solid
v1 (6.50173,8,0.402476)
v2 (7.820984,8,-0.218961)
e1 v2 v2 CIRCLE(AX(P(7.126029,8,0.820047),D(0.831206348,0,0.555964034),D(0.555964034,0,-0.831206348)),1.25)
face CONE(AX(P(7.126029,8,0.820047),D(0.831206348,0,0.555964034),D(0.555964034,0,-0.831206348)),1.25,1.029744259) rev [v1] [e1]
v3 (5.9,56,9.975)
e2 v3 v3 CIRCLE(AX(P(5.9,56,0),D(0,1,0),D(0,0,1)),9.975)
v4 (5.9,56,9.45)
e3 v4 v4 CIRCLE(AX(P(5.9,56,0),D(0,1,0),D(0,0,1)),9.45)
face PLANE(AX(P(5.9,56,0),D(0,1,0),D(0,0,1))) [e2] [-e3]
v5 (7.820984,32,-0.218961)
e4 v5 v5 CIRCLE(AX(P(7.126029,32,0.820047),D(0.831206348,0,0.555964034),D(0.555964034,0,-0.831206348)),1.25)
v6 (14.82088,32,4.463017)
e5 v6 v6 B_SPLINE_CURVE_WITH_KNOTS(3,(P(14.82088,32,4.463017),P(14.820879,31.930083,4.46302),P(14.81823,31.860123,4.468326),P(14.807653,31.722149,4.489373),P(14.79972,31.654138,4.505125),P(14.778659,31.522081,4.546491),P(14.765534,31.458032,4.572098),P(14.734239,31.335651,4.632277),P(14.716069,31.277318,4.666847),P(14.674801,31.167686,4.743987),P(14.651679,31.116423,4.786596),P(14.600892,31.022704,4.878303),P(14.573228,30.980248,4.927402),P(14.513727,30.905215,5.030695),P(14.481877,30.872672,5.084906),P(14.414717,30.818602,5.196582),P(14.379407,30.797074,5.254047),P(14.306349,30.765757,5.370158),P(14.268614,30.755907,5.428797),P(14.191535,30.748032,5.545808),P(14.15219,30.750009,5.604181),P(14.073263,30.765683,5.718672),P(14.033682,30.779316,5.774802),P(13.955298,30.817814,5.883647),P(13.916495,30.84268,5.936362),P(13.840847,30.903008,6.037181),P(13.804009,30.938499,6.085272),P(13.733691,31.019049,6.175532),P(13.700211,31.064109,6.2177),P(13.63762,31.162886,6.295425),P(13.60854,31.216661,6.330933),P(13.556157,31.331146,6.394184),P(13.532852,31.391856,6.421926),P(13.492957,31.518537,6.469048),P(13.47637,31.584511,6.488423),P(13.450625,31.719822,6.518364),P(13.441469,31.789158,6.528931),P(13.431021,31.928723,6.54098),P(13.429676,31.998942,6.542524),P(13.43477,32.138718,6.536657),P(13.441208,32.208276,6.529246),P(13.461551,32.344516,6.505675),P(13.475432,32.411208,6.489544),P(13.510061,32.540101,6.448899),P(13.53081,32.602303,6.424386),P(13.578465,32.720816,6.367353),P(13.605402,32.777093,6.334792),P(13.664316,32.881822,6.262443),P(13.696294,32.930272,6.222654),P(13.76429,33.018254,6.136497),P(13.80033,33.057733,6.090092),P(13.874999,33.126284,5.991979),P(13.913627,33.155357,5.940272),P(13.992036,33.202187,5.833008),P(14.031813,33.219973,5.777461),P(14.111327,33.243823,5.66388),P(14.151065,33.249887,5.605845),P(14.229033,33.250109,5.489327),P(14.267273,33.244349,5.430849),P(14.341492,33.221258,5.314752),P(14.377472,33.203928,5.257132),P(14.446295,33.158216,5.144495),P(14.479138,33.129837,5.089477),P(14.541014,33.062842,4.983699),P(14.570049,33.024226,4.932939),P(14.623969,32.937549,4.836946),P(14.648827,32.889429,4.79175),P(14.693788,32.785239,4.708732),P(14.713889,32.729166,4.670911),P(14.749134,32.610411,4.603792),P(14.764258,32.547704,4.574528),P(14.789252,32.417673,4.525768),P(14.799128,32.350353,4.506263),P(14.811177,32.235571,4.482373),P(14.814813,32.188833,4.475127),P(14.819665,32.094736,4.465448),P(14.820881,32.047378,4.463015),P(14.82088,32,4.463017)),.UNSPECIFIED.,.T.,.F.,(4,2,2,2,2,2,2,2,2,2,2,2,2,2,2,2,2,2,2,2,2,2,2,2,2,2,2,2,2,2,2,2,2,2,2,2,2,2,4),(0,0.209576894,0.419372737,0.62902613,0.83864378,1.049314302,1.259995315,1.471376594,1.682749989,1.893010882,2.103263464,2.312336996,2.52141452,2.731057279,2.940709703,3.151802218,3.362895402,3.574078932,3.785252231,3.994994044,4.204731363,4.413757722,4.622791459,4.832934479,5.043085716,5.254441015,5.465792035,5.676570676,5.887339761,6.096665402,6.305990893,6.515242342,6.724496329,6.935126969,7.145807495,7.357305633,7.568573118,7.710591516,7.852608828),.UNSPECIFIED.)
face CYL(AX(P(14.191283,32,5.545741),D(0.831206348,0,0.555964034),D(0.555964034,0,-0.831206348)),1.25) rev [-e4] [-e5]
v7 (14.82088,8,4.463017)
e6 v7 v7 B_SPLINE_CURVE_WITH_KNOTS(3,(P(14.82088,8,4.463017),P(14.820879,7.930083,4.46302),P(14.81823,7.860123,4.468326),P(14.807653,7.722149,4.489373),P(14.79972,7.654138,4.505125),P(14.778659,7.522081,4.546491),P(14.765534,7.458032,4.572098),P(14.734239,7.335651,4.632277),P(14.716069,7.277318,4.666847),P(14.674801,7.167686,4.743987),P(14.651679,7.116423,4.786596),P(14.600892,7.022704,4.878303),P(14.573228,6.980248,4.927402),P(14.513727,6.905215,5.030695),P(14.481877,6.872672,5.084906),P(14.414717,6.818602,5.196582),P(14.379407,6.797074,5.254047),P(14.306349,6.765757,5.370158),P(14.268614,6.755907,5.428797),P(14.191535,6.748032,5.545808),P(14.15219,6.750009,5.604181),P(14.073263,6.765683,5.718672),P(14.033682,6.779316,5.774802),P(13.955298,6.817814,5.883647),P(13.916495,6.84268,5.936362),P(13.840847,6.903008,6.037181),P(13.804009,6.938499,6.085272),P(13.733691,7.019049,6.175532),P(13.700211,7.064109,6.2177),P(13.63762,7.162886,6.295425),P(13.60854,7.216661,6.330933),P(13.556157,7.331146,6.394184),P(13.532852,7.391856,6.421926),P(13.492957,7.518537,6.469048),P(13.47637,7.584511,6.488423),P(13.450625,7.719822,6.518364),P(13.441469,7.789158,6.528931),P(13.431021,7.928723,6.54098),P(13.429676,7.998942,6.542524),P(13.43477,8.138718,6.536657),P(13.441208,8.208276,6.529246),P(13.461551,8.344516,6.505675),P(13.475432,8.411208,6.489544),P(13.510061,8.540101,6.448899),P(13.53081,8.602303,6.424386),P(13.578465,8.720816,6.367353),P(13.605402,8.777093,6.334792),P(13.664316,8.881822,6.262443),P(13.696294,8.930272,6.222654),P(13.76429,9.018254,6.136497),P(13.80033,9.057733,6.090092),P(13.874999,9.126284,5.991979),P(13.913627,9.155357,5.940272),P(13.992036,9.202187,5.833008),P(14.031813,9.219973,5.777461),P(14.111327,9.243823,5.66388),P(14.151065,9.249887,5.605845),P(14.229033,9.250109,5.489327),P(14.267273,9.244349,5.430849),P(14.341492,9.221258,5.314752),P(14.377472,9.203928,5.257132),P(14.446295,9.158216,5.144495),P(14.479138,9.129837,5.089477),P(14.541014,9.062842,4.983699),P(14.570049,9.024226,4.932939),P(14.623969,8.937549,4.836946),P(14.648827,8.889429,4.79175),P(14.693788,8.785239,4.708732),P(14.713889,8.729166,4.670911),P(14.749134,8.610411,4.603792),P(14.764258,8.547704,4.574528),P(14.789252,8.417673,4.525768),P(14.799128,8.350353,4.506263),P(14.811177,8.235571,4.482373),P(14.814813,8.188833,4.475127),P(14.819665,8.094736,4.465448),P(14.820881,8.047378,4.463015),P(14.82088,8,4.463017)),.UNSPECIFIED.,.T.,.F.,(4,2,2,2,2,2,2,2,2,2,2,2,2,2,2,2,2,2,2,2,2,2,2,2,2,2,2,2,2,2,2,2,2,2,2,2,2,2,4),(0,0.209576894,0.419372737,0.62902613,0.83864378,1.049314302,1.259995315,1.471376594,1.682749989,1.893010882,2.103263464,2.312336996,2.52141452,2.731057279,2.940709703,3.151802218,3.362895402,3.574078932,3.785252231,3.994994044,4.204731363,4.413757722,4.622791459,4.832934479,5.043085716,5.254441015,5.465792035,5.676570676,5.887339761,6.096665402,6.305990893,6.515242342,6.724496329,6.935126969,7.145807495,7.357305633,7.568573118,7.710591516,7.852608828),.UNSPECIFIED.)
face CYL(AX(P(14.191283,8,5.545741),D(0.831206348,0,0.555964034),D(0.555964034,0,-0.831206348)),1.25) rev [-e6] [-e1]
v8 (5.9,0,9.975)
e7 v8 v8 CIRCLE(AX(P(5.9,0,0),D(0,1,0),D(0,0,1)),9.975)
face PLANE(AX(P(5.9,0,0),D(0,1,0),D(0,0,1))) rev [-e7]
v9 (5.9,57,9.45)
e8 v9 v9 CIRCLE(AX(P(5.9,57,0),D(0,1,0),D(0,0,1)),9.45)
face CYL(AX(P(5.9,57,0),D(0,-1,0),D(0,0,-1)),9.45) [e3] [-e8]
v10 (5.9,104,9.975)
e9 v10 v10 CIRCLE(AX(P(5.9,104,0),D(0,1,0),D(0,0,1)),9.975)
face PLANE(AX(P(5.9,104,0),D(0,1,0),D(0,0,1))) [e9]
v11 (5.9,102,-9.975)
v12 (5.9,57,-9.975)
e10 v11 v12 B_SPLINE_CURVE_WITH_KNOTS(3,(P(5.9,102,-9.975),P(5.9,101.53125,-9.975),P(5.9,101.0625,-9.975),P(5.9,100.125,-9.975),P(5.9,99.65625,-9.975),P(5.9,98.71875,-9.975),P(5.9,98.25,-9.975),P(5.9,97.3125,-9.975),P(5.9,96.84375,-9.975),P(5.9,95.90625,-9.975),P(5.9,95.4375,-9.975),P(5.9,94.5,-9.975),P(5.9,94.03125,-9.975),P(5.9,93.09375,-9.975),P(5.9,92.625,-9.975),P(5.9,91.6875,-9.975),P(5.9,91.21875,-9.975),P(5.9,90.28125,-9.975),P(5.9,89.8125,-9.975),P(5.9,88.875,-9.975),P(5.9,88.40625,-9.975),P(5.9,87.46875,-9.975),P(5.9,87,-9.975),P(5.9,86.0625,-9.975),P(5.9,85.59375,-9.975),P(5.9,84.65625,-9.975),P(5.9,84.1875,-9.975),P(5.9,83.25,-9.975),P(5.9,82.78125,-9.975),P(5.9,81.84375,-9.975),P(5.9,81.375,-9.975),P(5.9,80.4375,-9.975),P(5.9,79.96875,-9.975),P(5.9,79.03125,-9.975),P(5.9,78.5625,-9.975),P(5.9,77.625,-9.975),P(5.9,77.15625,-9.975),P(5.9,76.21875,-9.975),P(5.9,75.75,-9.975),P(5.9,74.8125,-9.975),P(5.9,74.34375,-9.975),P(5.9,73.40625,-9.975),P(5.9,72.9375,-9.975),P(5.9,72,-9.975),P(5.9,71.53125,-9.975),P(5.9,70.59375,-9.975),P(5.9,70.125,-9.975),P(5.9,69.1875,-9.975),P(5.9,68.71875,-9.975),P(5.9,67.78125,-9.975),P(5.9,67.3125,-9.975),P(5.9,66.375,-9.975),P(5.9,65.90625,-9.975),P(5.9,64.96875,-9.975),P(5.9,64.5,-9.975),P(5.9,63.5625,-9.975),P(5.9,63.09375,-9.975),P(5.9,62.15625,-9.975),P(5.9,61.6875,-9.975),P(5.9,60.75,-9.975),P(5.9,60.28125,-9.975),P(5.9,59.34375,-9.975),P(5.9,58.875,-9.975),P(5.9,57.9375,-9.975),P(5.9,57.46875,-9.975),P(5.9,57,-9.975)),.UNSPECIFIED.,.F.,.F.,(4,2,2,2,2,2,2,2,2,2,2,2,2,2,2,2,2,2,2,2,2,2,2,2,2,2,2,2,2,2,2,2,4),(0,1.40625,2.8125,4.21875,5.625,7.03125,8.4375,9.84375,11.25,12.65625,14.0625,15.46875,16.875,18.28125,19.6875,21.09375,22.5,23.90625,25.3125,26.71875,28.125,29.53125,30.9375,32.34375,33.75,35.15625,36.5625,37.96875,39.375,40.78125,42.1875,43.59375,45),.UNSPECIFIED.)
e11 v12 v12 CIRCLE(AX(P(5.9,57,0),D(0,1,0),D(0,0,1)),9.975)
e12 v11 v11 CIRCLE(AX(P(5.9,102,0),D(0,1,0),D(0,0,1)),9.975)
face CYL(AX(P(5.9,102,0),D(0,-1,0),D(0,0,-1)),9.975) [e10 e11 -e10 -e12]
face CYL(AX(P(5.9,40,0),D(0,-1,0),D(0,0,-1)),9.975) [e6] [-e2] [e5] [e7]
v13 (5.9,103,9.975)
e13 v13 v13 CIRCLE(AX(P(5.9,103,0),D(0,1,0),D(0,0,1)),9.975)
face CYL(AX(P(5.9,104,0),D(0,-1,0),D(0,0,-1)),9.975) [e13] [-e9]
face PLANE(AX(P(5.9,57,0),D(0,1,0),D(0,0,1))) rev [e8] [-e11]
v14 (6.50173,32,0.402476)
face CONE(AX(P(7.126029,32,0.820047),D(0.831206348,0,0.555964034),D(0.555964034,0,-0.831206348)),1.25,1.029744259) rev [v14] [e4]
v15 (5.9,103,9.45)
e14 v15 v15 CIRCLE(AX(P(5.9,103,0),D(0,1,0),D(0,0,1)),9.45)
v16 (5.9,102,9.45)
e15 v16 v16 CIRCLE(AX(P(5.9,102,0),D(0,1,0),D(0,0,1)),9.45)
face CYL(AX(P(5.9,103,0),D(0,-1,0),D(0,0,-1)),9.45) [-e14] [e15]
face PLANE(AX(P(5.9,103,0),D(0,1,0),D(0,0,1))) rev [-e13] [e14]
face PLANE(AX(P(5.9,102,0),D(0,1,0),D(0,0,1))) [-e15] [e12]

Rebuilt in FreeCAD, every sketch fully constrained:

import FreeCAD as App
import Part
import Sketcher
Q = App.Units.Quantity

doc = App.newDocument("Part")
body = doc.addObject("PartDesign::Body", "Body")

sketch1 = body.newObject("Sketcher::SketchObject", "Sketch")
sketch1.AttachmentSupport = (doc.getObject("XZ_Plane"), [""])
sketch1.MapMode = "FlatFace"
sketch1.addGeometry(Part.Circle(App.Vector(5.9, 0, 0), App.Vector(0, 0, 1), 9.975), False)
sketch1.addConstraint(Sketcher.Constraint("PointOnObject", 0, 3, -1))
sketch1.addConstraint(Sketcher.Constraint("Diameter", 0, Q("19.95 mm")))
sketch1.addConstraint(Sketcher.Constraint("DistanceX", -1, 1, 0, 3, Q("5.9 mm")))
pad1 = body.newObject("PartDesign::Pad", "Pad")
pad1.Profile = sketch1
pad1.Length = 40
pad1.Reversed = True

sketch2 = body.newObject("Sketcher::SketchObject", "Sketch001")
sketch2.AttachmentSupport = (doc.getObject("XZ_Plane"), [""])
sketch2.MapMode = "FlatFace"
sketch2.AttachmentOffset = App.Placement(App.Vector(0, 0, -8), App.Rotation())
sketch2.addGeometry(Part.LineSegment(App.Vector(6.50173, 0.402476, 0), App.Vector(14.191283, 5.545741, 0)), False)
sketch2.addGeometry(Part.LineSegment(App.Vector(14.191283, 5.545741, 0), App.Vector(14.886238, 4.506733, 0)), False)
sketch2.addGeometry(Part.LineSegment(App.Vector(14.886238, 4.506733, 0), App.Vector(7.820984, -0.218961, 0)), False)
sketch2.addGeometry(Part.LineSegment(App.Vector(7.820984, -0.218961, 0), App.Vector(6.50173, 0.402476, 0)), False)
sketch2.addGeometry(Part.LineSegment(App.Vector(14.191283, 5.545741, 0), App.Vector(6.50173, 0.402476, 0)), True)
sketch2.addConstraint(Sketcher.Constraint("Coincident", 0, 2, 1, 1))
sketch2.addConstraint(Sketcher.Constraint("Coincident", 1, 2, 2, 1))
sketch2.addConstraint(Sketcher.Constraint("Coincident", 2, 2, 3, 1))
sketch2.addConstraint(Sketcher.Constraint("Coincident", 3, 2, 0, 1))
sketch2.addConstraint(Sketcher.Constraint("Coincident", 4, 1, 0, 2))
sketch2.addConstraint(Sketcher.Constraint("Coincident", 4, 2, 3, 2))
sketch2.addConstraint(Sketcher.Constraint("Perpendicular", 0, 1))
sketch2.addConstraint(Sketcher.Constraint("Perpendicular", 1, 2))
sketch2.addConstraint(Sketcher.Constraint("Distance", 2, Q("8.5 mm")))
sketch2.addConstraint(Sketcher.Constraint("Distance", 1, Q("1.25 mm")))
sketch2.addConstraint(Sketcher.Constraint("DistanceX", 2, 2, 0, 2, Q("6.370299 mm")))
sketch2.addConstraint(Sketcher.Constraint("Distance", 3, Q("1.458292 mm")))
sketch2.addConstraint(Sketcher.Constraint("DistanceY", -1, 1, 0, 2, Q("5.545741 mm")))
sketch2.addConstraint(Sketcher.Constraint("DistanceX", -1, 1, 1, 2, Q("14.886238 mm")))
groove = body.newObject("PartDesign::Groove", "Groove")
groove.Profile = sketch2
groove.ReferenceAxis = (sketch2, ["Axis0"])
groove.Angle = 360
doc.recompute()

datumplane = body.newObject("PartDesign::Plane", "DatumPlane")
datumplane.AttachmentSupport = (doc.getObject("XZ_Plane"), [""])
datumplane.MapMode = "FlatFace"
datumplane.AttachmentOffset = App.Placement(App.Vector(0, 0, -20), App.Rotation())
mirrored = body.newObject("PartDesign::Mirrored", "Mirrored")
mirrored.Originals = [groove]
mirrored.MirrorPlane = (datumplane, [""])
body.Tip = mirrored

sketch3 = body.newObject("Sketcher::SketchObject", "Sketch002")
sketch3.AttachmentSupport = (doc.getObject("XZ_Plane"), [""])
sketch3.MapMode = "FlatFace"
sketch3.AttachmentOffset = App.Placement(App.Vector(0, 0, -40), App.Rotation())
sketch3.addGeometry(Part.Circle(App.Vector(5.9, 0, 0), App.Vector(0, 0, 1), 9.975), False)
sketch3.addConstraint(Sketcher.Constraint("PointOnObject", 0, 3, -1))
sketch3.addConstraint(Sketcher.Constraint("Diameter", 0, Q("19.95 mm")))
sketch3.addConstraint(Sketcher.Constraint("DistanceX", -1, 1, 0, 3, Q("5.9 mm")))
pad2 = body.newObject("PartDesign::Pad", "Pad001")
pad2.Profile = sketch3
pad2.Length = 16
pad2.Reversed = True

sketch4 = body.newObject("Sketcher::SketchObject", "Sketch003")
sketch4.AttachmentSupport = (doc.getObject("XZ_Plane"), [""])
sketch4.MapMode = "FlatFace"
sketch4.AttachmentOffset = App.Placement(App.Vector(0, 0, -56), App.Rotation())
sketch4.addGeometry(Part.Circle(App.Vector(5.9, 0, 0), App.Vector(0, 0, 1), 9.45), False)
sketch4.addConstraint(Sketcher.Constraint("PointOnObject", 0, 3, -1))
sketch4.addConstraint(Sketcher.Constraint("Diameter", 0, Q("18.9 mm")))
sketch4.addConstraint(Sketcher.Constraint("DistanceX", -1, 1, 0, 3, Q("5.9 mm")))
pad3 = body.newObject("PartDesign::Pad", "Pad002")
pad3.Profile = sketch4
pad3.Length = 1
pad3.Reversed = True

sketch5 = body.newObject("Sketcher::SketchObject", "Sketch004")
sketch5.AttachmentSupport = (doc.getObject("XZ_Plane"), [""])
sketch5.MapMode = "FlatFace"
sketch5.AttachmentOffset = App.Placement(App.Vector(0, 0, -57), App.Rotation())
sketch5.addGeometry(Part.Circle(App.Vector(5.9, 0, 0), App.Vector(0, 0, 1), 9.975), False)
sketch5.addConstraint(Sketcher.Constraint("PointOnObject", 0, 3, -1))
sketch5.addConstraint(Sketcher.Constraint("Diameter", 0, Q("19.95 mm")))
sketch5.addConstraint(Sketcher.Constraint("DistanceX", -1, 1, 0, 3, Q("5.9 mm")))
pad4 = body.newObject("PartDesign::Pad", "Pad003")
pad4.Profile = sketch5
pad4.Length = 45
pad4.Reversed = True

sketch6 = body.newObject("Sketcher::SketchObject", "Sketch005")
sketch6.AttachmentSupport = (doc.getObject("XZ_Plane"), [""])
sketch6.MapMode = "FlatFace"
sketch6.AttachmentOffset = App.Placement(App.Vector(0, 0, -102), App.Rotation())
sketch6.addGeometry(Part.Circle(App.Vector(5.9, 0, 0), App.Vector(0, 0, 1), 9.45), False)
sketch6.addConstraint(Sketcher.Constraint("PointOnObject", 0, 3, -1))
sketch6.addConstraint(Sketcher.Constraint("Diameter", 0, Q("18.9 mm")))
sketch6.addConstraint(Sketcher.Constraint("DistanceX", -1, 1, 0, 3, Q("5.9 mm")))
pad5 = body.newObject("PartDesign::Pad", "Pad004")
pad5.Profile = sketch6
pad5.Length = 1
pad5.Reversed = True

sketch7 = body.newObject("Sketcher::SketchObject", "Sketch006")
sketch7.AttachmentSupport = (doc.getObject("XZ_Plane"), [""])
sketch7.MapMode = "FlatFace"
sketch7.AttachmentOffset = App.Placement(App.Vector(0, 0, -103), App.Rotation())
sketch7.addGeometry(Part.Circle(App.Vector(5.9, 0, 0), App.Vector(0, 0, 1), 9.975), False)
sketch7.addConstraint(Sketcher.Constraint("PointOnObject", 0, 3, -1))
sketch7.addConstraint(Sketcher.Constraint("Diameter", 0, Q("19.95 mm")))
sketch7.addConstraint(Sketcher.Constraint("DistanceX", -1, 1, 0, 3, Q("5.9 mm")))
pad6 = body.newObject("PartDesign::Pad", "Pad005")
pad6.Profile = sketch7
pad6.Length = 1
pad6.Reversed = True

doc.recompute()
